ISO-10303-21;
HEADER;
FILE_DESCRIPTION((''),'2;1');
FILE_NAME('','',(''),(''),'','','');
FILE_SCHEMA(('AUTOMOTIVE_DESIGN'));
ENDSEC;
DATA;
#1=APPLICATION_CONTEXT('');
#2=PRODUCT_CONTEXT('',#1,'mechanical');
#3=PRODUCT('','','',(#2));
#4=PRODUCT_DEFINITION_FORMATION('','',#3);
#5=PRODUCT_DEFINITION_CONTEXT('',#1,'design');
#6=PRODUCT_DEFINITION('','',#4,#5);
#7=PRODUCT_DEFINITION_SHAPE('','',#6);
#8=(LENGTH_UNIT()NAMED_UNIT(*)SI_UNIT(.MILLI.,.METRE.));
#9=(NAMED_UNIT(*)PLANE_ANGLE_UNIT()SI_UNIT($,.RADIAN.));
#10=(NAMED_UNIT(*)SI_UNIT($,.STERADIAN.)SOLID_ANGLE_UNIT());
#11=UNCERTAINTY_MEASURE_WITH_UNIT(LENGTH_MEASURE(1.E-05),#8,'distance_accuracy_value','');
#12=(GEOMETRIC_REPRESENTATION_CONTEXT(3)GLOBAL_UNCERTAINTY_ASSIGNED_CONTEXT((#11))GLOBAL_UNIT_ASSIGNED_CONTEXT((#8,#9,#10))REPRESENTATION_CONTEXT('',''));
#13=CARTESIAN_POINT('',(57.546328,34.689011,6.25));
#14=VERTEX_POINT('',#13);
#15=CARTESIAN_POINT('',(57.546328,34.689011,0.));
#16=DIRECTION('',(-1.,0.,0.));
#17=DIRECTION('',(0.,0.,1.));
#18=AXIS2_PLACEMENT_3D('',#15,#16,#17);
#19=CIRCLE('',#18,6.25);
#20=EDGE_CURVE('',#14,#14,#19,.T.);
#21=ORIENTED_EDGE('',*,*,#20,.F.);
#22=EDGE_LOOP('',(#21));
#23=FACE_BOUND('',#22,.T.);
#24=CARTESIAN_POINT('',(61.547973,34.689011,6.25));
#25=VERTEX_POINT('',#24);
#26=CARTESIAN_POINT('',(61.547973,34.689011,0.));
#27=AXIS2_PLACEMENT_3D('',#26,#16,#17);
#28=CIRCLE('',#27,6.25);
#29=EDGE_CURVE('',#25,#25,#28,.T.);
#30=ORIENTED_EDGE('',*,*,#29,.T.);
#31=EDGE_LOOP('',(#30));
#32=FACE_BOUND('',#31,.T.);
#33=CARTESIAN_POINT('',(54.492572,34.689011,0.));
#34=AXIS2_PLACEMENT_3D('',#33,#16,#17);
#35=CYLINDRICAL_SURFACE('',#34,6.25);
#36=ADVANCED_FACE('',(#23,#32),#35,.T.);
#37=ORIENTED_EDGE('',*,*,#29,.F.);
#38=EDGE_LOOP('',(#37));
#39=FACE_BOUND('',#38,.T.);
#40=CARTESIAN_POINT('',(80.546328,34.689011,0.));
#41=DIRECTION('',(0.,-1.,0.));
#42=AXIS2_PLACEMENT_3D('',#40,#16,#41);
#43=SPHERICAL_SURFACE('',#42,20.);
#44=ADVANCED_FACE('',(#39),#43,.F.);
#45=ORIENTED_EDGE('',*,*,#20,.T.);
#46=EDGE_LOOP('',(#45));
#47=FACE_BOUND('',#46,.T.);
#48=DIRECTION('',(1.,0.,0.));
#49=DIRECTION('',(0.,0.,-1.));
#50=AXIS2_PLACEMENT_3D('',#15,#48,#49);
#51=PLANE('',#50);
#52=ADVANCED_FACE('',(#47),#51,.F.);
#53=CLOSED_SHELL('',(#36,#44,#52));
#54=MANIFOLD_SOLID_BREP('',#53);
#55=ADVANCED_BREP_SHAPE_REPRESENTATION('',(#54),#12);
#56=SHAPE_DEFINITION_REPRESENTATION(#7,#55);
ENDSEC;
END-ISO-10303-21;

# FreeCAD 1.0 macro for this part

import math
import FreeCAD as App
import Part
import Sketcher

V = App.Vector

doc = App.newDocument("Part")
params = doc.addObject("Spreadsheet::Sheet", "Params")
for row, (alias, value) in enumerate([
    ("sketch1_radius", "20 mm"),
    ("sketch1_width", "3 mm"),
    ("sketch1_height", "6.25 mm"),
    ("revolution_angle", "360 deg"),
], start=1):
    params.set(f"A{row}", alias)
    params.set(f"B{row}", "=" + value)
    params.setAlias(f"B{row}", alias)

body = doc.addObject("PartDesign::Body", "Body")

sketch1 = body.newObject("Sketcher::SketchObject", "Sketch")
sketch1.AttachmentSupport = (doc.getObject("XY_Plane"), [""])
sketch1.MapMode = "FlatFace"
sketch1.addGeometry([
    Part.LineSegment(V(57.5, 40.9, 0), V(57.5, 34.7, 0)),
    Part.LineSegment(V(57.5, 34.7, 0), V(60.5, 34.7, 0)),
    Part.ArcOfCircle(Part.Circle(V(80.5, 34.7, 0), V(0, 0, 1), 20), math.radians(161.79), math.radians(180)),
    Part.LineSegment(V(61.5, 40.9, 0), V(57.5, 40.9, 0)),
], False)
sketch1.addGeometry(Part.LineSegment(V(57.5, 34.7, 0), V(80.5, 34.7, 0)), True)
sketch1.addConstraint([
    Sketcher.Constraint("Coincident", 0, 2, 1, 1),
    Sketcher.Constraint("Coincident", 1, 2, 2, 2),
    Sketcher.Constraint("Coincident", 2, 1, 3, 1),
    Sketcher.Constraint("Coincident", 3, 2, 0, 1),
    Sketcher.Constraint("Vertical", 0),
    Sketcher.Constraint("Horizontal", 1),
    Sketcher.Constraint("Horizontal", 3),
    Sketcher.Constraint("Horizontal", 4),
    Sketcher.Constraint("Coincident", 4, 1, 0, 2),
    Sketcher.Constraint("Coincident", 4, 2, 2, 3),
    Sketcher.Constraint("Radius", 2, 20.0),
    Sketcher.Constraint("DistanceX", 1, 1, 1, 2, 3.0),
    Sketcher.Constraint("DistanceY", 0, 2, 0, 1, 6.25),
    Sketcher.Constraint("DistanceY", -1, 1, 2, 3, 34.689011),
    Sketcher.Constraint("DistanceX", -1, 1, 2, 3, 80.546328),
])
sketch1.setExpression("Constraints[10]", "Params.sketch1_radius")
sketch1.setExpression("Constraints[11]", "Params.sketch1_width")
sketch1.setExpression("Constraints[12]", "Params.sketch1_height")
revolution = body.newObject("PartDesign::Revolution", "Revolution")
revolution.Profile = sketch1
revolution.ReferenceAxis = (sketch1, ["Axis0"])
revolution.setExpression("Angle", "Params.revolution_angle")

doc.recompute()
